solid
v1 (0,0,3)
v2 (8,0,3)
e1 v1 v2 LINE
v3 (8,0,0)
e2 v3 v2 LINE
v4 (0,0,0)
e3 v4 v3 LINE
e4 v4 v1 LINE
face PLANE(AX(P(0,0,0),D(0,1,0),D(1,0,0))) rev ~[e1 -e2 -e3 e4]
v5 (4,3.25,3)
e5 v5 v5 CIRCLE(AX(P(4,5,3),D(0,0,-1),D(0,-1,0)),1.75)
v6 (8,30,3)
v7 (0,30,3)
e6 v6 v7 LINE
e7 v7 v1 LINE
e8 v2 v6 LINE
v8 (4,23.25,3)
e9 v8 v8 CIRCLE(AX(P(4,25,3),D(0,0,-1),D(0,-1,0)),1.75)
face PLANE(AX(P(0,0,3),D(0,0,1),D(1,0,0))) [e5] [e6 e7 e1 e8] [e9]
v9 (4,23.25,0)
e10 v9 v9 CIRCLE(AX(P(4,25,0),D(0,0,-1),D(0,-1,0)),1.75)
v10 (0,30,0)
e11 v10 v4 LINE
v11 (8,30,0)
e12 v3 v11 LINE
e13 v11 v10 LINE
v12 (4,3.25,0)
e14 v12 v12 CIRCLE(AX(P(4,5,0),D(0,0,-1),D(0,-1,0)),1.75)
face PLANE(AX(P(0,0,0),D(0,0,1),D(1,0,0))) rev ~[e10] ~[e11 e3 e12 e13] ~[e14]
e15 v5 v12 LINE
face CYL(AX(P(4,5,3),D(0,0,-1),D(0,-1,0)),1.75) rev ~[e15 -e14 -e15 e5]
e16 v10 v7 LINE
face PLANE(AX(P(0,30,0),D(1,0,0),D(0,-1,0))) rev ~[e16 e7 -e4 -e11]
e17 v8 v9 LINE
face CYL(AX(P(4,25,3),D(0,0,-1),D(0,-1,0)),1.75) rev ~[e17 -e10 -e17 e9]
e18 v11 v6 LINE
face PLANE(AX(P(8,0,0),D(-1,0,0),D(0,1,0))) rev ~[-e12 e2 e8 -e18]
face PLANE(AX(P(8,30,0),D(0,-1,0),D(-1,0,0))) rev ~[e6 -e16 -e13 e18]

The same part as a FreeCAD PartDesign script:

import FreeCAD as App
import Part
import Sketcher
Q = App.Units.Quantity


def add_polygon(sketch, points):
    """Adds a closed chain of lines whose ends are joined by coincident constraints."""
    first, n = sketch.GeometryCount, len(points)
    for a, b in zip(points, points[1:] + points[:1]):
        sketch.addGeometry(Part.LineSegment(App.Vector(*a, 0), App.Vector(*b, 0)), False)
    for i in range(n):
        sketch.addConstraint(Sketcher.Constraint("Coincident", first + i, 2, first + (i + 1) % n, 1))

doc = App.newDocument("Part")
body = doc.addObject("PartDesign::Body", "Body")

# Sketch on XY plane
sketch1 = body.newObject("Sketcher::SketchObject", "Sketch")
sketch1.AttachmentSupport = (doc.getObject("XY_Plane"), [""])
sketch1.MapMode = "FlatFace"
add_polygon(sketch1, [(0, 30), (0, 0), (8, 0), (8, 30)])  # lines 0-3
sketch1.addConstraint([
    Sketcher.Constraint("Vertical", 0),
    Sketcher.Constraint("Horizontal", 1),
    Sketcher.Constraint("Vertical", 2),
    Sketcher.Constraint("Horizontal", 3),
    Sketcher.Constraint("Coincident", 0, 2, -1, 1),
    Sketcher.Constraint("DistanceX", 1, 1, 1, 2, Q("8 mm")),
    Sketcher.Constraint("DistanceY", 0, 2, 0, 1, Q("30 mm")),
])
pad1 = body.newObject("PartDesign::Pad", "Pad")
pad1.Profile = sketch1
pad1.Length = 3

# Sketch on XY plane
sketch2 = body.newObject("Sketcher::SketchObject", "Sketch001")
sketch2.AttachmentSupport = (doc.getObject("XY_Plane"), [""])
sketch2.MapMode = "FlatFace"
sketch2.AttachmentOffset = App.Placement(App.Vector(0, 0, 3), App.Rotation())
sketch2.addGeometry([
    Part.Circle(App.Vector(4, 25, 0), App.Vector(0, 0, 1), 1.75),
    Part.Circle(App.Vector(4, 5, 0), App.Vector(0, 0, 1), 1.75),
], False)
sketch2.addConstraint([
    Sketcher.Constraint("Equal", 0, 1),
    Sketcher.Constraint("Vertical", 0, 3, 1, 3),
    Sketcher.Constraint("Diameter", 0, Q("3.5 mm")),
    Sketcher.Constraint("DistanceX", -1, 1, 0, 3, Q("4 mm")),
    Sketcher.Constraint("DistanceY", -1, 1, 0, 3, Q("25 mm")),
    Sketcher.Constraint("DistanceY", -1, 1, 1, 3, Q("5 mm")),
])
doc.recompute()
hole = body.newObject("PartDesign::Hole", "Hole")
hole.Profile = sketch2
hole.ThreadType = "None"
hole.Diameter = 3.5
hole.DepthType = "ThroughAll"

doc.recompute()
